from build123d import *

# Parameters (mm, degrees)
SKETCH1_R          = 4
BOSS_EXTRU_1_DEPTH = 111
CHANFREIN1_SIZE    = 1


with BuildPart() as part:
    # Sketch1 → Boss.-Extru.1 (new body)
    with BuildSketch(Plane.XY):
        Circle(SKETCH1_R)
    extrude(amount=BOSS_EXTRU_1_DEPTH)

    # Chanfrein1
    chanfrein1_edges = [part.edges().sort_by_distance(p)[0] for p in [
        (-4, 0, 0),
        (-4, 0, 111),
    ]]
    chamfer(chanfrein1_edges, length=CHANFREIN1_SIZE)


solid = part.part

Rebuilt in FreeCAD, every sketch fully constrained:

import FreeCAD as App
import Part
import Sketcher
from FreeCAD import Vector


def edges_at(feature, points):
    """Names of the edges that pass closest to the given points."""
    edges = feature.Shape.Edges
    near = lambda p: min(range(len(edges)), key=lambda i: edges[i].distToShape(Part.Vertex(*p))[0])
    return sorted({f"Edge{near(p) + 1}" for p in points})

doc = App.newDocument("Part")
body = doc.addObject("PartDesign::Body", "Body")

# Sketch on XY plane
sketch1 = doc.addObject("Sketcher::SketchObject", "Sketch")
body.addObject(sketch1)
sketch1.AttachmentSupport = (doc.XY_Plane, [""])
sketch1.MapMode = "FlatFace"
sketch1.addGeometry(Part.Circle(Vector(0, 0, 0), Vector(0, 0, 1), 4), False)
sketch1.addConstraint([
    Sketcher.Constraint("Coincident", 0, 3, -1, 1),
    Sketcher.Constraint("Diameter", 0, 8.0),
])
pad1 = doc.addObject("PartDesign::Pad", "Pad")
body.addObject(pad1)
pad1.Profile = sketch1
pad1.Length = 111
doc.recompute()

chamfer = doc.addObject("PartDesign::Chamfer", "Chamfer")
body.addObject(chamfer)
chamfer.Base = (pad1, edges_at(pad1, [(-4, 0, 0), (-4, 0, 111)]))
chamfer.Size = 1

doc.recompute()
